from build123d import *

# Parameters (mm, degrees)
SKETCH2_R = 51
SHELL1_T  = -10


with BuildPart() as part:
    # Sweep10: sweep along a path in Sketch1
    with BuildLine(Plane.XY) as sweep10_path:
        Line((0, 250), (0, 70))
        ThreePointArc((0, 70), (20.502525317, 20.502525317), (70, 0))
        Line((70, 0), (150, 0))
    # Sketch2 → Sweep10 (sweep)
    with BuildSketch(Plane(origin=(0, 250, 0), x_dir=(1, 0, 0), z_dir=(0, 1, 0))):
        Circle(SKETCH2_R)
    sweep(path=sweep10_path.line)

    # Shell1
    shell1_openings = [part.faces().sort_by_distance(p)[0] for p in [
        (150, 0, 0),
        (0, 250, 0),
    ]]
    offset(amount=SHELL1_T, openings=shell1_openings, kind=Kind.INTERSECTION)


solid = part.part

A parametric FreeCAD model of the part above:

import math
import FreeCAD as App
import Part
import Sketcher
from FreeCAD import Vector
Q = App.Units.Quantity


def faces_at(feature, points):
    """Names of the faces that lie closest to the given points."""
    faces = feature.Shape.Faces
    near = lambda p: min(range(len(faces)), key=lambda i: faces[i].distToShape(Part.Vertex(*p))[0])
    return sorted({f"Face{near(p) + 1}" for p in points})

doc = App.newDocument("Part")
params = doc.addObject("Spreadsheet::Sheet", "Params")
for row, (alias, value) in enumerate([
    ("sketch1_diameter", "102 mm"),
    ("sketch2_radius", "70 mm"),
    ("sketch2_width", "80 mm"),
    ("sketch2_height", "180 mm"),
    ("thickness_wall", "10 mm"),
], start=1):
    params.set(f"A{row}", alias)
    params.set(f"B{row}", "=" + value)
    params.setAlias(f"B{row}", alias)

body = doc.addObject("PartDesign::Body", "Body")

# Sketch on XZ plane
sketch1 = body.newObject("Sketcher::SketchObject", "Sketch")
sketch1.AttachmentSupport = (doc.getObject("XZ_Plane"), [""])
sketch1.MapMode = "FlatFace"
sketch1.AttachmentOffset = App.Placement(Vector(0, 0, -250), App.Rotation())
sketch1.addGeometry(Part.Circle(Vector(0, 0, 0), Vector(0, 0, 1), 51), False)
sketch1.addConstraint(Sketcher.Constraint("Coincident", 0, 3, -1, 1))
sketch1.addConstraint(Sketcher.Constraint("Diameter", 0, Q("102 mm")))
sketch1.setExpression("Constraints[1]", "Params.sketch1_diameter")

# Sketch on XY plane
sketch2 = body.newObject("Sketcher::SketchObject", "Sketch001")
sketch2.AttachmentSupport = (doc.getObject("XY_Plane"), [""])
sketch2.MapMode = "FlatFace"
sketch2.addGeometry(Part.LineSegment(Vector(0, 250, 0), Vector(0, 70, 0)), False)
sketch2.addGeometry(Part.ArcOfCircle(Part.Circle(Vector(70, 70, 0), Vector(0, 0, 1), 70), math.radians(180), math.radians(270)), False)
sketch2.addGeometry(Part.LineSegment(Vector(70, 0, 0), Vector(150, 0, 0)), False)
sketch2.addConstraint(Sketcher.Constraint("Tangent", 0, 2, 1, 1))
sketch2.addConstraint(Sketcher.Constraint("Tangent", 1, 2, 2, 1))
sketch2.addConstraint(Sketcher.Constraint("Vertical", 0))
sketch2.addConstraint(Sketcher.Constraint("Horizontal", 2))
sketch2.addConstraint(Sketcher.Constraint("PointOnObject", 0, 1, -2))
sketch2.addConstraint(Sketcher.Constraint("PointOnObject", 1, 2, -1))
sketch2.addConstraint(Sketcher.Constraint("Radius", 1, Q("70 mm")))
sketch2.addConstraint(Sketcher.Constraint("DistanceX", 2, 1, 2, 2, Q("80 mm")))
sketch2.addConstraint(Sketcher.Constraint("DistanceY", 0, 2, 0, 1, Q("180 mm")))
sketch2.setExpression("Constraints[6]", "Params.sketch2_radius")
sketch2.setExpression("Constraints[7]", "Params.sketch2_width")
sketch2.setExpression("Constraints[8]", "Params.sketch2_height")
doc.recompute()

additivepipe = body.newObject("PartDesign::AdditivePipe", "AdditivePipe")
additivepipe.Profile = sketch1
additivepipe.Spine = (sketch2, ["Edge1", "Edge2", "Edge3"])
doc.recompute()

thickness = body.newObject("PartDesign::Thickness", "Thickness")
thickness.Base = (additivepipe, faces_at(additivepipe, [(150, 0, 0), (0, 250, 0)]))
thickness.setExpression("Value", "Params.thickness_wall")
thickness.Reversed = True
thickness.Join = "Intersection"

doc.recompute()
